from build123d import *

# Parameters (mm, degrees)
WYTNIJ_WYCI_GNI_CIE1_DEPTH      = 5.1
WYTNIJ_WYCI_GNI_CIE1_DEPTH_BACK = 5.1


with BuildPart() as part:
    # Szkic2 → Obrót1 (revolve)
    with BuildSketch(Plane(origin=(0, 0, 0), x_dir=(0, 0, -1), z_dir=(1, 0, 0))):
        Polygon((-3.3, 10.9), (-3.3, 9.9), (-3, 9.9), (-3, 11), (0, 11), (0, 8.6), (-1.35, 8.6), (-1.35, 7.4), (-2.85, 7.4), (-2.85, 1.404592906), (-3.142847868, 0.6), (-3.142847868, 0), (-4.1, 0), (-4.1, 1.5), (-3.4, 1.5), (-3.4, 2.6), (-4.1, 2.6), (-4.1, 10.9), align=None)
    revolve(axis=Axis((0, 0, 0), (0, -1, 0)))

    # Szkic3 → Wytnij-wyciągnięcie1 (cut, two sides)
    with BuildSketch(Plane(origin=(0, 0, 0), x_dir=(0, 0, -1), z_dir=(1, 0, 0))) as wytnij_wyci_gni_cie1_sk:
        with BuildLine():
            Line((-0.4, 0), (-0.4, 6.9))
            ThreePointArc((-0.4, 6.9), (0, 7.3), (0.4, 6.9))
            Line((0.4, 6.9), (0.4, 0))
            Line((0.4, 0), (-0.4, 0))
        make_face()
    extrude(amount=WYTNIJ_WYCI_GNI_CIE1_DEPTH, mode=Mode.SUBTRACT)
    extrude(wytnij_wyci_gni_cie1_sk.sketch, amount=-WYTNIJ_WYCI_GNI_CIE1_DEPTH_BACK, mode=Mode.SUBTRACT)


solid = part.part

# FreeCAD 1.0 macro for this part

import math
import FreeCAD as App
import Part
import Sketcher
Q = App.Units.Quantity

doc = App.newDocument("Part")
params = doc.addObject("Spreadsheet::Sheet", "Params")
for row, (alias, value) in enumerate([
    ("sketch1_width", "1 mm"),
    ("sketch1_height", "3 mm"),
    ("sketch1_width2", "8.3 mm"),
    ("sketch1_width3", "1.1 mm"),
    ("sketch1_width4", "1.5 mm"),
    ("revolution_angle", "360 deg"),
    ("sketch2_radius", "0.4 mm"),
    ("sketch2_width", "6.9 mm"),
], start=1):
    params.set(f"A{row}", alias)
    params.set(f"B{row}", "=" + value)
    params.setAlias(f"B{row}", alias)

body = doc.addObject("PartDesign::Body", "Body")

# Sketch on YZ plane
sketch1 = body.newObject("Sketcher::SketchObject", "Sketch")
sketch1.AttachmentSupport = (doc.getObject("YZ_Plane"), [""])
sketch1.MapMode = "FlatFace"
sketch1.addGeometry([
    Part.LineSegment(App.Vector(9.9, 3.3, 0), App.Vector(10.9, 3.3, 0)),  # 0
    Part.LineSegment(App.Vector(10.9, 3.3, 0), App.Vector(10.9, 4.1, 0)),  # 1
    Part.LineSegment(App.Vector(10.9, 4.1, 0), App.Vector(2.6, 4.1, 0)),  # 2
    Part.LineSegment(App.Vector(2.6, 4.1, 0), App.Vector(2.6, 3.4, 0)),  # 3
    Part.LineSegment(App.Vector(2.6, 3.4, 0), App.Vector(1.5, 3.4, 0)),  # 4
    Part.LineSegment(App.Vector(1.5, 3.4, 0), App.Vector(1.5, 4.1, 0)),  # 5
    Part.LineSegment(App.Vector(1.5, 4.1, 0), App.Vector(0, 4.1, 0)),  # 6
    Part.LineSegment(App.Vector(0, 4.1, 0), App.Vector(0, 3.14, 0)),  # 7
    Part.LineSegment(App.Vector(0, 3.14, 0), App.Vector(0.6, 3.14, 0)),  # 8
    Part.LineSegment(App.Vector(0.6, 3.14, 0), App.Vector(1.4, 2.85, 0)),  # 9
    Part.LineSegment(App.Vector(1.4, 2.85, 0), App.Vector(7.4, 2.85, 0)),  # 10
    Part.LineSegment(App.Vector(7.4, 2.85, 0), App.Vector(7.4, 1.35, 0)),  # 11
    Part.LineSegment(App.Vector(7.4, 1.35, 0), App.Vector(8.6, 1.35, 0)),  # 12
    Part.LineSegment(App.Vector(8.6, 1.35, 0), App.Vector(8.6, 0, 0)),  # 13
    Part.LineSegment(App.Vector(8.6, 0, 0), App.Vector(11, 0, 0)),  # 14
    Part.LineSegment(App.Vector(11, 0, 0), App.Vector(11, 3, 0)),  # 15
    Part.LineSegment(App.Vector(11, 3, 0), App.Vector(9.9, 3, 0)),  # 16
    Part.LineSegment(App.Vector(9.9, 3, 0), App.Vector(9.9, 3.3, 0)),  # 17
], False)
sketch1.addConstraint([
    Sketcher.Constraint("Coincident", 0, 2, 1, 1),
    Sketcher.Constraint("Coincident", 1, 2, 2, 1),
    Sketcher.Constraint("Coincident", 2, 2, 3, 1),
    Sketcher.Constraint("Coincident", 3, 2, 4, 1),
    Sketcher.Constraint("Coincident", 4, 2, 5, 1),
    Sketcher.Constraint("Coincident", 5, 2, 6, 1),
    Sketcher.Constraint("Coincident", 6, 2, 7, 1),
    Sketcher.Constraint("Coincident", 7, 2, 8, 1),
    Sketcher.Constraint("Coincident", 8, 2, 9, 1),
    Sketcher.Constraint("Coincident", 9, 2, 10, 1),
    Sketcher.Constraint("Coincident", 10, 2, 11, 1),
    Sketcher.Constraint("Coincident", 11, 2, 12, 1),
    Sketcher.Constraint("Coincident", 12, 2, 13, 1),
    Sketcher.Constraint("Coincident", 13, 2, 14, 1),
    Sketcher.Constraint("Coincident", 14, 2, 15, 1),
    Sketcher.Constraint("Coincident", 15, 2, 16, 1),
    Sketcher.Constraint("Coincident", 16, 2, 17, 1),
    Sketcher.Constraint("Coincident", 17, 2, 0, 1),
    Sketcher.Constraint("Horizontal", 0),
    Sketcher.Constraint("Vertical", 1),
    Sketcher.Constraint("Horizontal", 2),
    Sketcher.Constraint("Vertical", 3),
    Sketcher.Constraint("Horizontal", 4),
    Sketcher.Constraint("Vertical", 5),
    Sketcher.Constraint("Horizontal", 6),
    Sketcher.Constraint("Vertical", 7),
    Sketcher.Constraint("Horizontal", 8),
    Sketcher.Constraint("Horizontal", 10),
    Sketcher.Constraint("Vertical", 11),
    Sketcher.Constraint("Horizontal", 12),
    Sketcher.Constraint("Vertical", 13),
    Sketcher.Constraint("Horizontal", 14),
    Sketcher.Constraint("Vertical", 15),
    Sketcher.Constraint("Horizontal", 16),
    Sketcher.Constraint("Vertical", 17),
    Sketcher.Constraint("PointOnObject", 6, 2, -2),
    Sketcher.Constraint("PointOnObject", 13, 2, -1),
    Sketcher.Constraint("Horizontal", 2, 2, 5, 2),
    Sketcher.Constraint("Equal", 4, 16),
    Sketcher.Constraint("Equal", 6, 11),
    Sketcher.Constraint("DistanceX", 0, 1, 0, 2, Q("1 mm")),
    Sketcher.Constraint("DistanceY", 15, 1, 15, 2, Q("3 mm")),
    Sketcher.Constraint("Angle", 9, Q("-20 deg")),
    Sketcher.Constraint("DistanceX", 2, 2, 2, 1, Q("8.3 mm")),
    Sketcher.Constraint("DistanceX", 4, 2, 4, 1, Q("1.1 mm")),
    Sketcher.Constraint("DistanceX", 6, 2, 6, 1, Q("1.5 mm")),
    Sketcher.Constraint("DistanceX", 8, 1, 8, 2, Q("0.6 mm")),
    Sketcher.Constraint("DistanceX", 12, 1, 12, 2, Q("1.2 mm")),
    Sketcher.Constraint("DistanceX", 14, 1, 14, 2, Q("2.4 mm")),
    Sketcher.Constraint("DistanceY", 1, 1, 1, 2, Q("0.8 mm")),
    Sketcher.Constraint("DistanceY", 3, 2, 3, 1, Q("0.7 mm")),
    Sketcher.Constraint("DistanceY", 17, 1, 17, 2, Q("0.3 mm")),
    Sketcher.Constraint("DistanceY", 13, 2, 13, 1, Q("1.35 mm")),
    Sketcher.Constraint("Distance", 9, Q("0.85623 mm")),
])
sketch1.setExpression("Constraints[40]", "Params.sketch1_width")
sketch1.setExpression("Constraints[41]", "Params.sketch1_height")
sketch1.setExpression("Constraints[43]", "Params.sketch1_width2")
sketch1.setExpression("Constraints[44]", "Params.sketch1_width3")
sketch1.setExpression("Constraints[45]", "Params.sketch1_width4")
revolution = body.newObject("PartDesign::Revolution", "Revolution")
revolution.Profile = sketch1
revolution.ReferenceAxis = (sketch1, ["H_Axis"])
revolution.setExpression("Angle", "Params.revolution_angle")

# Sketch on YZ plane
sketch2 = body.newObject("Sketcher::SketchObject", "Sketch001")
sketch2.AttachmentSupport = (doc.getObject("YZ_Plane"), [""])
sketch2.MapMode = "FlatFace"
sketch2.addGeometry([
    Part.LineSegment(App.Vector(6.9, 0.4, 0), App.Vector(0, 0.4, 0)),
    Part.LineSegment(App.Vector(0, 0.4, 0), App.Vector(0, -0.4, 0)),
    Part.LineSegment(App.Vector(0, -0.4, 0), App.Vector(6.9, -0.4, 0)),
    Part.ArcOfCircle(Part.Circle(App.Vector(6.9, 0, 0), App.Vector(0, 0, 1), 0.4), math.radians(-90), math.radians(90)),
], False)
sketch2.addConstraint([
    Sketcher.Constraint("Coincident", 0, 2, 1, 1),
    Sketcher.Constraint("Coincident", 1, 2, 2, 1),
    Sketcher.Constraint("Tangent", 2, 2, 3, 1),
    Sketcher.Constraint("Tangent", 3, 2, 0, 1),
    Sketcher.Constraint("Horizontal", 0),
    Sketcher.Constraint("Vertical", 1),
    Sketcher.Constraint("Horizontal", 2),
    Sketcher.Constraint("Symmetric", 0, 2, 1, 2, -1, 1),
    Sketcher.Constraint("Radius", 3, Q("0.4 mm")),
    Sketcher.Constraint("DistanceX", 0, 2, 0, 1, Q("6.9 mm")),
])
sketch2.setExpression("Constraints[8]", "Params.sketch2_radius")
sketch2.setExpression("Constraints[9]", "Params.sketch2_width")
pocket1 = body.newObject("PartDesign::Pocket", "Pocket")
pocket1.Profile = sketch2
pocket1.Type = "ThroughAll"
pocket1.Midplane = True

doc.recompute()
